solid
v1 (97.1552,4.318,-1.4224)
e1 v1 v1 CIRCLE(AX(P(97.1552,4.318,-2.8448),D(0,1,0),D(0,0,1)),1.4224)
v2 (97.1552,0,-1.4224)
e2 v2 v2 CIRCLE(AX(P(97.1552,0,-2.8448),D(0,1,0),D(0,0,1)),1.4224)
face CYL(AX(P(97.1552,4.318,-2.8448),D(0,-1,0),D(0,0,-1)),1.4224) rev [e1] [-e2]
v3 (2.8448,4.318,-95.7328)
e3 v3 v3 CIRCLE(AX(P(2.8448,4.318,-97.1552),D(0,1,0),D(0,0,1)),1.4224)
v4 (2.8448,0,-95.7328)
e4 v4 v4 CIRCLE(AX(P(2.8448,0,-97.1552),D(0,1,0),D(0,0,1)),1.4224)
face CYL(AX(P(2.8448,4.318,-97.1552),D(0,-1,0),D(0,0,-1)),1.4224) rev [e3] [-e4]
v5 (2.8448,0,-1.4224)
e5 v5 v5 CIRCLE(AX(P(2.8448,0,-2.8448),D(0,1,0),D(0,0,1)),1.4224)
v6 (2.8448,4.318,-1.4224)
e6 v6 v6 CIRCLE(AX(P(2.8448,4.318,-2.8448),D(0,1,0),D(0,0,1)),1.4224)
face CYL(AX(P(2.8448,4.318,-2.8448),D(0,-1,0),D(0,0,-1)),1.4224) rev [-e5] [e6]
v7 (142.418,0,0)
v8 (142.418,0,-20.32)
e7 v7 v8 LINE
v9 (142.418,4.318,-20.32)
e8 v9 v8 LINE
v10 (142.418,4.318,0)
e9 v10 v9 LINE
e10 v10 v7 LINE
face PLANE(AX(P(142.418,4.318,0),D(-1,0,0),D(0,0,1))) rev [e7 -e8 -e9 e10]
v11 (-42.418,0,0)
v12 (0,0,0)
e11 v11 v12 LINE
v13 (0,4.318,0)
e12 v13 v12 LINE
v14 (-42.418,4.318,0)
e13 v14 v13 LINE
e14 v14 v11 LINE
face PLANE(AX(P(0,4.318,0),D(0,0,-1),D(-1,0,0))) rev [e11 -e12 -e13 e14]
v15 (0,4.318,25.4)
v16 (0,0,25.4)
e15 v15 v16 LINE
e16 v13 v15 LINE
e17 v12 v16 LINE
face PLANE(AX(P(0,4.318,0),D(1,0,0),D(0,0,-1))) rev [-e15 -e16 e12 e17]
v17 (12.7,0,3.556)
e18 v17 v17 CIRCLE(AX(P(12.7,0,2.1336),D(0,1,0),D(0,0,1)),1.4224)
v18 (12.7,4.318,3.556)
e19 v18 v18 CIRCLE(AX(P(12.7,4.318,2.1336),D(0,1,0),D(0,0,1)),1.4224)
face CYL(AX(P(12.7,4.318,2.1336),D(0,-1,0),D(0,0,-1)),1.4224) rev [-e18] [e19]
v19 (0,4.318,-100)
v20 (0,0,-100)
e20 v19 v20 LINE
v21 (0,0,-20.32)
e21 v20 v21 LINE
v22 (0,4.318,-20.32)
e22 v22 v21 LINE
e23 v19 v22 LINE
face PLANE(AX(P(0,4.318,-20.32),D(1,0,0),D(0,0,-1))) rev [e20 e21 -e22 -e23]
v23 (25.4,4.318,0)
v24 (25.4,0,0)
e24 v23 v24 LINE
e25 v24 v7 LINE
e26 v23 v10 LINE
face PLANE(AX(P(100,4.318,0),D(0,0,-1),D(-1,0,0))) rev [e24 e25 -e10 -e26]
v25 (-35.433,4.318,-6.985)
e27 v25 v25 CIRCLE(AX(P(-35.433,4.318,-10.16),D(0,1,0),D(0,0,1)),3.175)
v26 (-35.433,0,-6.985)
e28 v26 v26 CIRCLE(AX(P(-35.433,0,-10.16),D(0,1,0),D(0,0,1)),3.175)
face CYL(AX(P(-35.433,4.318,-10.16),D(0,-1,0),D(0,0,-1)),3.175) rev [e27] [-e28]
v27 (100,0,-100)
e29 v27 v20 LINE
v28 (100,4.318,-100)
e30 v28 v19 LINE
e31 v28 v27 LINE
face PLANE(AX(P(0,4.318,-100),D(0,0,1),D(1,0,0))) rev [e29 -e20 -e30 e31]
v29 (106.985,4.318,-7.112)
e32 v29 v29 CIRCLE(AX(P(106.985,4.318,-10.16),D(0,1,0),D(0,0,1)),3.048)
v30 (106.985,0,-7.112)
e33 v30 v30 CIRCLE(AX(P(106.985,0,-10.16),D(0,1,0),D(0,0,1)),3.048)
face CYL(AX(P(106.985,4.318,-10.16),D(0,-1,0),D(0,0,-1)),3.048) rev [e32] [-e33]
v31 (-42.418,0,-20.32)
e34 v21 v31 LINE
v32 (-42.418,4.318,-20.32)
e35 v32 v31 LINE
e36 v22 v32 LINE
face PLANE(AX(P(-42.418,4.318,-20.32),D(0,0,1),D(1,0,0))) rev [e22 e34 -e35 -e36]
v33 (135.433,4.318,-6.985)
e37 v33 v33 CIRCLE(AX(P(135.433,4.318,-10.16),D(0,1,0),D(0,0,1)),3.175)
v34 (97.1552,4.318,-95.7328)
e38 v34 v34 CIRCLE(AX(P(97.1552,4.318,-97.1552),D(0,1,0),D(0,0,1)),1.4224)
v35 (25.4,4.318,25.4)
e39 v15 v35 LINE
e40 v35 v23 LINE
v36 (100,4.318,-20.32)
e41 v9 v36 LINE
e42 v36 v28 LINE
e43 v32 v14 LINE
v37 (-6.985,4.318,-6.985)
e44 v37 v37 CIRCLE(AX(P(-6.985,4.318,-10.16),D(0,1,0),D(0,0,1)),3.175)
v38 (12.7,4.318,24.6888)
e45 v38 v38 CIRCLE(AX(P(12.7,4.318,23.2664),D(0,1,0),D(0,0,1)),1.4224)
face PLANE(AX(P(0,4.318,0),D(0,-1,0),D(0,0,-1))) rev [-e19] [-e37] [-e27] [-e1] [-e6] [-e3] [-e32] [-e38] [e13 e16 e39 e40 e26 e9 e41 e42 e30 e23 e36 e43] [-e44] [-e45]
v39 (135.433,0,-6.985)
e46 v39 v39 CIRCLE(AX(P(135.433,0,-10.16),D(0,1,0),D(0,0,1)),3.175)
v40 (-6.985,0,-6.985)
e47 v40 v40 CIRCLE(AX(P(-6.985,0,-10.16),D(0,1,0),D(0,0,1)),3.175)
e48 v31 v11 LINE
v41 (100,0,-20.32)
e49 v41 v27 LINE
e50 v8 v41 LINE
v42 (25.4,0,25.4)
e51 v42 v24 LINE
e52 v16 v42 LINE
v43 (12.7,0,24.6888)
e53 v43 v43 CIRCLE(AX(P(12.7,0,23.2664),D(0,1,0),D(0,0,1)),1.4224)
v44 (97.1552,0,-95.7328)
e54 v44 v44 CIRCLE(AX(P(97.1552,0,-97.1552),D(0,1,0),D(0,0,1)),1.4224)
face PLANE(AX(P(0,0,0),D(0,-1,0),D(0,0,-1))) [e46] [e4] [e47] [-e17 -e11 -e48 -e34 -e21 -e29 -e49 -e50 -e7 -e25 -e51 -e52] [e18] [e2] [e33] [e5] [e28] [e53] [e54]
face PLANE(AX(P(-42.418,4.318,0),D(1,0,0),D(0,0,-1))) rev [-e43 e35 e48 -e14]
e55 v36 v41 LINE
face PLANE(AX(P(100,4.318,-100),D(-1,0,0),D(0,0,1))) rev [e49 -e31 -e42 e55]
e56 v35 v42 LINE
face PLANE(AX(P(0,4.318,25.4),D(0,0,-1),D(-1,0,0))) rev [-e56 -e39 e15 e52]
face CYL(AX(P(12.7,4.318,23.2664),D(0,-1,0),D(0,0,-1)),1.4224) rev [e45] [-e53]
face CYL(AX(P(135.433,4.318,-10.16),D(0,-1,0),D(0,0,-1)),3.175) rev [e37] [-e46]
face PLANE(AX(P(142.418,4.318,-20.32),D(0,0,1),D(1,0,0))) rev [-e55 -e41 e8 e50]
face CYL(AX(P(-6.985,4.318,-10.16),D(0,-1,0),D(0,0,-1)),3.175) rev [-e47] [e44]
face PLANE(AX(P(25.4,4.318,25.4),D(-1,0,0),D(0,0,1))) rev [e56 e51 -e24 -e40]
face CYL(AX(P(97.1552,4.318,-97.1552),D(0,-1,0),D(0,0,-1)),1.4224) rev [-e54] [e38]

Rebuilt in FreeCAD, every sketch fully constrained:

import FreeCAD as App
import Part
import Sketcher

V = App.Vector
Q = App.Units.Quantity


def add_polygon(sketch, points):
    """Adds a closed chain of lines whose ends are joined by coincident constraints."""
    first, n = sketch.GeometryCount, len(points)
    for a, b in zip(points, points[1:] + points[:1]):
        sketch.addGeometry(Part.LineSegment(App.Vector(*a, 0), App.Vector(*b, 0)), False)
    for i in range(n):
        sketch.addConstraint(Sketcher.Constraint("Coincident", first + i, 2, first + (i + 1) % n, 1))

doc = App.newDocument("Part")
body = doc.addObject("PartDesign::Body", "Body")

# Sketch on XZ plane
sketch1 = body.newObject("Sketcher::SketchObject", "Sketch")
sketch1.AttachmentSupport = (doc.getObject("XZ_Plane"), [""])
sketch1.MapMode = "FlatFace"
add_polygon(sketch1, [(0, -100), (0, -20.3), (-42.4, -20.3), (-42.4, 0), (0, 0), (0, 25.4), (25.4, 25.4), (25.4, 0), (142.4, 0), (142.4, -20.3), (100, -20.3), (100, -100)])  # lines 0-11
sketch1.addGeometry(Part.Circle(V(97.2, -2.8, 0), V(0, 0, 1), 1.4), False)  # 12
sketch1.addGeometry(Part.Circle(V(135.4, -10.2, 0), V(0, 0, 1), 3.2), False)  # 13
sketch1.addGeometry(Part.Circle(V(107, -10.2, 0), V(0, 0, 1), 3), False)  # 14
sketch1.addGeometry(Part.Circle(V(12.7, 23.3, 0), V(0, 0, 1), 1.4), False)  # 15
sketch1.addGeometry(Part.Circle(V(12.7, 2.1, 0), V(0, 0, 1), 1.4), False)  # 16
sketch1.addGeometry(Part.Circle(V(2.8, -2.8, 0), V(0, 0, 1), 1.4), False)  # 17
sketch1.addGeometry(Part.Circle(V(-7, -10.2, 0), V(0, 0, 1), 3.2), False)  # 18
sketch1.addGeometry(Part.Circle(V(-35.4, -10.2, 0), V(0, 0, 1), 3.2), False)  # 19
sketch1.addGeometry(Part.Circle(V(97.2, -97.2, 0), V(0, 0, 1), 1.4), False)  # 20
sketch1.addGeometry(Part.Circle(V(2.8, -97.2, 0), V(0, 0, 1), 1.4), False)  # 21
sketch1.addConstraint(Sketcher.Constraint("Vertical", 0))
sketch1.addConstraint(Sketcher.Constraint("Horizontal", 1))
sketch1.addConstraint(Sketcher.Constraint("Vertical", 2))
sketch1.addConstraint(Sketcher.Constraint("Horizontal", 3))
sketch1.addConstraint(Sketcher.Constraint("Vertical", 4))
sketch1.addConstraint(Sketcher.Constraint("Horizontal", 5))
sketch1.addConstraint(Sketcher.Constraint("Vertical", 6))
sketch1.addConstraint(Sketcher.Constraint("Horizontal", 7))
sketch1.addConstraint(Sketcher.Constraint("Vertical", 8))
sketch1.addConstraint(Sketcher.Constraint("Horizontal", 9))
sketch1.addConstraint(Sketcher.Constraint("Vertical", 10))
sketch1.addConstraint(Sketcher.Constraint("Horizontal", 11))
sketch1.addConstraint(Sketcher.Constraint("Coincident", 3, 2, -1, 1))
sketch1.addConstraint(Sketcher.Constraint("Equal", 12, 15))
sketch1.addConstraint(Sketcher.Constraint("Equal", 15, 16))
sketch1.addConstraint(Sketcher.Constraint("Equal", 16, 17))
sketch1.addConstraint(Sketcher.Constraint("Equal", 13, 18))
sketch1.addConstraint(Sketcher.Constraint("Equal", 18, 19))
sketch1.addConstraint(Sketcher.Constraint("Equal", 17, 20))
sketch1.addConstraint(Sketcher.Constraint("Equal", 20, 21))
sketch1.addConstraint(Sketcher.Constraint("PointOnObject", 0, 2, -2))
sketch1.addConstraint(Sketcher.Constraint("PointOnObject", 6, 2, -1))
sketch1.addConstraint(Sketcher.Constraint("Horizontal", 13, 3, 14, 3))
sketch1.addConstraint(Sketcher.Constraint("Horizontal", 12, 3, 17, 3))
sketch1.addConstraint(Sketcher.Constraint("Horizontal", 14, 3, 18, 3))
sketch1.addConstraint(Sketcher.Constraint("Horizontal", 18, 3, 19, 3))
sketch1.addConstraint(Sketcher.Constraint("Horizontal", 20, 3, 21, 3))
sketch1.addConstraint(Sketcher.Constraint("Horizontal", 1, 2, 8, 2))
sketch1.addConstraint(Sketcher.Constraint("Vertical", 15, 3, 16, 3))
sketch1.addConstraint(Sketcher.Constraint("Vertical", 12, 3, 20, 3))
sketch1.addConstraint(Sketcher.Constraint("Vertical", 17, 3, 21, 3))
sketch1.addConstraint(Sketcher.Constraint("Equal", 3, 9))
sketch1.addConstraint(Sketcher.Constraint("Equal", 5, 4))
sketch1.addConstraint(Sketcher.Constraint("Diameter", 13, Q("0.25 in")))
sketch1.addConstraint(Sketcher.Constraint("Diameter", 14, Q("0.24 in")))
sketch1.addConstraint(Sketcher.Constraint("DistanceX", 5, 1, 5, 2, Q("1 in")))
sketch1.addConstraint(Sketcher.Constraint("Diameter", 12, Q("0.112 in")))
sketch1.addConstraint(Sketcher.Constraint("DistanceY", 2, 1, 2, 2, Q("0.8 in")))
sketch1.addConstraint(Sketcher.Constraint("DistanceX", 1, 2, 1, 1, Q("1.67 in")))
sketch1.addConstraint(Sketcher.Constraint("DistanceY", 13, 3, -1, 1, Q("0.4 in")))
sketch1.addConstraint(Sketcher.Constraint("DistanceX", -1, 1, 15, 3, Q("0.5 in")))
sketch1.addConstraint(Sketcher.Constraint("DistanceX", 14, 3, 13, 3, Q("1.12 in")))
sketch1.addConstraint(Sketcher.Constraint("DistanceX", 19, 3, 18, 3, Q("1.12 in")))
sketch1.addConstraint(Sketcher.Constraint("DistanceY", 12, 3, -1, 1, Q("0.112 in")))
sketch1.addConstraint(Sketcher.Constraint("DistanceY", -1, 1, 15, 3, Q("0.916 in")))
sketch1.addConstraint(Sketcher.Constraint("DistanceY", -1, 1, 16, 3, Q("0.084 in")))
sketch1.addConstraint(Sketcher.Constraint("DistanceX", -1, 1, 17, 3, Q("0.112 in")))
sketch1.addConstraint(Sketcher.Constraint("DistanceX", 18, 3, -1, 1, Q("0.275 in")))
sketch1.addConstraint(Sketcher.Constraint("DistanceX", 12, 3, 13, 3, Q("1.507 in")))
sketch1.addConstraint(Sketcher.Constraint("DistanceX", 13, 3, 7, 2, Q("0.275 in")))
sketch1.addConstraint(Sketcher.Constraint("DistanceY", 10, 2, 20, 3, Q("0.112 in")))
sketch1.addConstraint(Sketcher.Constraint("DistanceX", 7, 1, 7, 2, Q("117.018 mm")))
sketch1.addConstraint(Sketcher.Constraint("DistanceY", 0, 1, 0, 2, Q("79.68 mm")))
pad1 = body.newObject("PartDesign::Pad", "Pad")
pad1.Profile = sketch1
pad1.Length = Q("0.17 in")
pad1.Reversed = True

doc.recompute()
